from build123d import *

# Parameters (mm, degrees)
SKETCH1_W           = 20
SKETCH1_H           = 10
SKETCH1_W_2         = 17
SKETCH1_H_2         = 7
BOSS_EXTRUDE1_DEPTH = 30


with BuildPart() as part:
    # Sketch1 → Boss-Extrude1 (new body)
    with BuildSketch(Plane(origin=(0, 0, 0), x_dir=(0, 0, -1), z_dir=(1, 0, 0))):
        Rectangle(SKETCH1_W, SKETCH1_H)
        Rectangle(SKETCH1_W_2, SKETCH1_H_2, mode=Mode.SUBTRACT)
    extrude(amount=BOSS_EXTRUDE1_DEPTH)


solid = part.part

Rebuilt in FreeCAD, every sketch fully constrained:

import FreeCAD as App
import Part
import Sketcher

doc = App.newDocument("Part")
body = doc.addObject("PartDesign::Body", "Body")

# Sketch on YZ plane
sketch1 = body.newObject("Sketcher::SketchObject", "Sketch")
sketch1.AttachmentSupport = (doc.getObject("YZ_Plane"), [""])
sketch1.MapMode = "FlatFace"
sketch1.addGeometry([
    Part.LineSegment(App.Vector(5, 10, 0), App.Vector(-5, 10, 0)),  # 0
    Part.LineSegment(App.Vector(-5, 10, 0), App.Vector(-5, -10, 0)),  # 1
    Part.LineSegment(App.Vector(-5, -10, 0), App.Vector(5, -10, 0)),  # 2
    Part.LineSegment(App.Vector(5, -10, 0), App.Vector(5, 10, 0)),  # 3
    Part.LineSegment(App.Vector(-4, -8, 0), App.Vector(-4, 8, 0)),  # 4
    Part.LineSegment(App.Vector(-4, 8, 0), App.Vector(4, 8, 0)),  # 5
    Part.LineSegment(App.Vector(4, 8, 0), App.Vector(4, -8, 0)),  # 6
    Part.LineSegment(App.Vector(4, -8, 0), App.Vector(-4, -8, 0)),  # 7
], False)
sketch1.addConstraint([
    Sketcher.Constraint("Coincident", 0, 2, 1, 1),
    Sketcher.Constraint("Coincident", 1, 2, 2, 1),
    Sketcher.Constraint("Coincident", 2, 2, 3, 1),
    Sketcher.Constraint("Coincident", 3, 2, 0, 1),
    Sketcher.Constraint("Coincident", 4, 2, 5, 1),
    Sketcher.Constraint("Coincident", 5, 2, 6, 1),
    Sketcher.Constraint("Coincident", 6, 2, 7, 1),
    Sketcher.Constraint("Coincident", 7, 2, 4, 1),
    Sketcher.Constraint("Horizontal", 0),
    Sketcher.Constraint("Vertical", 1),
    Sketcher.Constraint("Horizontal", 2),
    Sketcher.Constraint("Vertical", 3),
    Sketcher.Constraint("Vertical", 4),
    Sketcher.Constraint("Horizontal", 5),
    Sketcher.Constraint("Vertical", 6),
    Sketcher.Constraint("Horizontal", 7),
    Sketcher.Constraint("Symmetric", 0, 2, 2, 2, -1, 1),
    Sketcher.Constraint("Symmetric", 4, 2, 6, 2, -1, 1),
    Sketcher.Constraint("DistanceX", 0, 2, 0, 1, 10.0),
    Sketcher.Constraint("DistanceX", 5, 1, 5, 2, 7.0),
    Sketcher.Constraint("DistanceY", 1, 2, 1, 1, 20.0),
    Sketcher.Constraint("DistanceY", 4, 1, 4, 2, 17.0),
])
pad1 = body.newObject("PartDesign::Pad", "Pad")
pad1.Profile = sketch1
pad1.Length = 30

doc.recompute()
